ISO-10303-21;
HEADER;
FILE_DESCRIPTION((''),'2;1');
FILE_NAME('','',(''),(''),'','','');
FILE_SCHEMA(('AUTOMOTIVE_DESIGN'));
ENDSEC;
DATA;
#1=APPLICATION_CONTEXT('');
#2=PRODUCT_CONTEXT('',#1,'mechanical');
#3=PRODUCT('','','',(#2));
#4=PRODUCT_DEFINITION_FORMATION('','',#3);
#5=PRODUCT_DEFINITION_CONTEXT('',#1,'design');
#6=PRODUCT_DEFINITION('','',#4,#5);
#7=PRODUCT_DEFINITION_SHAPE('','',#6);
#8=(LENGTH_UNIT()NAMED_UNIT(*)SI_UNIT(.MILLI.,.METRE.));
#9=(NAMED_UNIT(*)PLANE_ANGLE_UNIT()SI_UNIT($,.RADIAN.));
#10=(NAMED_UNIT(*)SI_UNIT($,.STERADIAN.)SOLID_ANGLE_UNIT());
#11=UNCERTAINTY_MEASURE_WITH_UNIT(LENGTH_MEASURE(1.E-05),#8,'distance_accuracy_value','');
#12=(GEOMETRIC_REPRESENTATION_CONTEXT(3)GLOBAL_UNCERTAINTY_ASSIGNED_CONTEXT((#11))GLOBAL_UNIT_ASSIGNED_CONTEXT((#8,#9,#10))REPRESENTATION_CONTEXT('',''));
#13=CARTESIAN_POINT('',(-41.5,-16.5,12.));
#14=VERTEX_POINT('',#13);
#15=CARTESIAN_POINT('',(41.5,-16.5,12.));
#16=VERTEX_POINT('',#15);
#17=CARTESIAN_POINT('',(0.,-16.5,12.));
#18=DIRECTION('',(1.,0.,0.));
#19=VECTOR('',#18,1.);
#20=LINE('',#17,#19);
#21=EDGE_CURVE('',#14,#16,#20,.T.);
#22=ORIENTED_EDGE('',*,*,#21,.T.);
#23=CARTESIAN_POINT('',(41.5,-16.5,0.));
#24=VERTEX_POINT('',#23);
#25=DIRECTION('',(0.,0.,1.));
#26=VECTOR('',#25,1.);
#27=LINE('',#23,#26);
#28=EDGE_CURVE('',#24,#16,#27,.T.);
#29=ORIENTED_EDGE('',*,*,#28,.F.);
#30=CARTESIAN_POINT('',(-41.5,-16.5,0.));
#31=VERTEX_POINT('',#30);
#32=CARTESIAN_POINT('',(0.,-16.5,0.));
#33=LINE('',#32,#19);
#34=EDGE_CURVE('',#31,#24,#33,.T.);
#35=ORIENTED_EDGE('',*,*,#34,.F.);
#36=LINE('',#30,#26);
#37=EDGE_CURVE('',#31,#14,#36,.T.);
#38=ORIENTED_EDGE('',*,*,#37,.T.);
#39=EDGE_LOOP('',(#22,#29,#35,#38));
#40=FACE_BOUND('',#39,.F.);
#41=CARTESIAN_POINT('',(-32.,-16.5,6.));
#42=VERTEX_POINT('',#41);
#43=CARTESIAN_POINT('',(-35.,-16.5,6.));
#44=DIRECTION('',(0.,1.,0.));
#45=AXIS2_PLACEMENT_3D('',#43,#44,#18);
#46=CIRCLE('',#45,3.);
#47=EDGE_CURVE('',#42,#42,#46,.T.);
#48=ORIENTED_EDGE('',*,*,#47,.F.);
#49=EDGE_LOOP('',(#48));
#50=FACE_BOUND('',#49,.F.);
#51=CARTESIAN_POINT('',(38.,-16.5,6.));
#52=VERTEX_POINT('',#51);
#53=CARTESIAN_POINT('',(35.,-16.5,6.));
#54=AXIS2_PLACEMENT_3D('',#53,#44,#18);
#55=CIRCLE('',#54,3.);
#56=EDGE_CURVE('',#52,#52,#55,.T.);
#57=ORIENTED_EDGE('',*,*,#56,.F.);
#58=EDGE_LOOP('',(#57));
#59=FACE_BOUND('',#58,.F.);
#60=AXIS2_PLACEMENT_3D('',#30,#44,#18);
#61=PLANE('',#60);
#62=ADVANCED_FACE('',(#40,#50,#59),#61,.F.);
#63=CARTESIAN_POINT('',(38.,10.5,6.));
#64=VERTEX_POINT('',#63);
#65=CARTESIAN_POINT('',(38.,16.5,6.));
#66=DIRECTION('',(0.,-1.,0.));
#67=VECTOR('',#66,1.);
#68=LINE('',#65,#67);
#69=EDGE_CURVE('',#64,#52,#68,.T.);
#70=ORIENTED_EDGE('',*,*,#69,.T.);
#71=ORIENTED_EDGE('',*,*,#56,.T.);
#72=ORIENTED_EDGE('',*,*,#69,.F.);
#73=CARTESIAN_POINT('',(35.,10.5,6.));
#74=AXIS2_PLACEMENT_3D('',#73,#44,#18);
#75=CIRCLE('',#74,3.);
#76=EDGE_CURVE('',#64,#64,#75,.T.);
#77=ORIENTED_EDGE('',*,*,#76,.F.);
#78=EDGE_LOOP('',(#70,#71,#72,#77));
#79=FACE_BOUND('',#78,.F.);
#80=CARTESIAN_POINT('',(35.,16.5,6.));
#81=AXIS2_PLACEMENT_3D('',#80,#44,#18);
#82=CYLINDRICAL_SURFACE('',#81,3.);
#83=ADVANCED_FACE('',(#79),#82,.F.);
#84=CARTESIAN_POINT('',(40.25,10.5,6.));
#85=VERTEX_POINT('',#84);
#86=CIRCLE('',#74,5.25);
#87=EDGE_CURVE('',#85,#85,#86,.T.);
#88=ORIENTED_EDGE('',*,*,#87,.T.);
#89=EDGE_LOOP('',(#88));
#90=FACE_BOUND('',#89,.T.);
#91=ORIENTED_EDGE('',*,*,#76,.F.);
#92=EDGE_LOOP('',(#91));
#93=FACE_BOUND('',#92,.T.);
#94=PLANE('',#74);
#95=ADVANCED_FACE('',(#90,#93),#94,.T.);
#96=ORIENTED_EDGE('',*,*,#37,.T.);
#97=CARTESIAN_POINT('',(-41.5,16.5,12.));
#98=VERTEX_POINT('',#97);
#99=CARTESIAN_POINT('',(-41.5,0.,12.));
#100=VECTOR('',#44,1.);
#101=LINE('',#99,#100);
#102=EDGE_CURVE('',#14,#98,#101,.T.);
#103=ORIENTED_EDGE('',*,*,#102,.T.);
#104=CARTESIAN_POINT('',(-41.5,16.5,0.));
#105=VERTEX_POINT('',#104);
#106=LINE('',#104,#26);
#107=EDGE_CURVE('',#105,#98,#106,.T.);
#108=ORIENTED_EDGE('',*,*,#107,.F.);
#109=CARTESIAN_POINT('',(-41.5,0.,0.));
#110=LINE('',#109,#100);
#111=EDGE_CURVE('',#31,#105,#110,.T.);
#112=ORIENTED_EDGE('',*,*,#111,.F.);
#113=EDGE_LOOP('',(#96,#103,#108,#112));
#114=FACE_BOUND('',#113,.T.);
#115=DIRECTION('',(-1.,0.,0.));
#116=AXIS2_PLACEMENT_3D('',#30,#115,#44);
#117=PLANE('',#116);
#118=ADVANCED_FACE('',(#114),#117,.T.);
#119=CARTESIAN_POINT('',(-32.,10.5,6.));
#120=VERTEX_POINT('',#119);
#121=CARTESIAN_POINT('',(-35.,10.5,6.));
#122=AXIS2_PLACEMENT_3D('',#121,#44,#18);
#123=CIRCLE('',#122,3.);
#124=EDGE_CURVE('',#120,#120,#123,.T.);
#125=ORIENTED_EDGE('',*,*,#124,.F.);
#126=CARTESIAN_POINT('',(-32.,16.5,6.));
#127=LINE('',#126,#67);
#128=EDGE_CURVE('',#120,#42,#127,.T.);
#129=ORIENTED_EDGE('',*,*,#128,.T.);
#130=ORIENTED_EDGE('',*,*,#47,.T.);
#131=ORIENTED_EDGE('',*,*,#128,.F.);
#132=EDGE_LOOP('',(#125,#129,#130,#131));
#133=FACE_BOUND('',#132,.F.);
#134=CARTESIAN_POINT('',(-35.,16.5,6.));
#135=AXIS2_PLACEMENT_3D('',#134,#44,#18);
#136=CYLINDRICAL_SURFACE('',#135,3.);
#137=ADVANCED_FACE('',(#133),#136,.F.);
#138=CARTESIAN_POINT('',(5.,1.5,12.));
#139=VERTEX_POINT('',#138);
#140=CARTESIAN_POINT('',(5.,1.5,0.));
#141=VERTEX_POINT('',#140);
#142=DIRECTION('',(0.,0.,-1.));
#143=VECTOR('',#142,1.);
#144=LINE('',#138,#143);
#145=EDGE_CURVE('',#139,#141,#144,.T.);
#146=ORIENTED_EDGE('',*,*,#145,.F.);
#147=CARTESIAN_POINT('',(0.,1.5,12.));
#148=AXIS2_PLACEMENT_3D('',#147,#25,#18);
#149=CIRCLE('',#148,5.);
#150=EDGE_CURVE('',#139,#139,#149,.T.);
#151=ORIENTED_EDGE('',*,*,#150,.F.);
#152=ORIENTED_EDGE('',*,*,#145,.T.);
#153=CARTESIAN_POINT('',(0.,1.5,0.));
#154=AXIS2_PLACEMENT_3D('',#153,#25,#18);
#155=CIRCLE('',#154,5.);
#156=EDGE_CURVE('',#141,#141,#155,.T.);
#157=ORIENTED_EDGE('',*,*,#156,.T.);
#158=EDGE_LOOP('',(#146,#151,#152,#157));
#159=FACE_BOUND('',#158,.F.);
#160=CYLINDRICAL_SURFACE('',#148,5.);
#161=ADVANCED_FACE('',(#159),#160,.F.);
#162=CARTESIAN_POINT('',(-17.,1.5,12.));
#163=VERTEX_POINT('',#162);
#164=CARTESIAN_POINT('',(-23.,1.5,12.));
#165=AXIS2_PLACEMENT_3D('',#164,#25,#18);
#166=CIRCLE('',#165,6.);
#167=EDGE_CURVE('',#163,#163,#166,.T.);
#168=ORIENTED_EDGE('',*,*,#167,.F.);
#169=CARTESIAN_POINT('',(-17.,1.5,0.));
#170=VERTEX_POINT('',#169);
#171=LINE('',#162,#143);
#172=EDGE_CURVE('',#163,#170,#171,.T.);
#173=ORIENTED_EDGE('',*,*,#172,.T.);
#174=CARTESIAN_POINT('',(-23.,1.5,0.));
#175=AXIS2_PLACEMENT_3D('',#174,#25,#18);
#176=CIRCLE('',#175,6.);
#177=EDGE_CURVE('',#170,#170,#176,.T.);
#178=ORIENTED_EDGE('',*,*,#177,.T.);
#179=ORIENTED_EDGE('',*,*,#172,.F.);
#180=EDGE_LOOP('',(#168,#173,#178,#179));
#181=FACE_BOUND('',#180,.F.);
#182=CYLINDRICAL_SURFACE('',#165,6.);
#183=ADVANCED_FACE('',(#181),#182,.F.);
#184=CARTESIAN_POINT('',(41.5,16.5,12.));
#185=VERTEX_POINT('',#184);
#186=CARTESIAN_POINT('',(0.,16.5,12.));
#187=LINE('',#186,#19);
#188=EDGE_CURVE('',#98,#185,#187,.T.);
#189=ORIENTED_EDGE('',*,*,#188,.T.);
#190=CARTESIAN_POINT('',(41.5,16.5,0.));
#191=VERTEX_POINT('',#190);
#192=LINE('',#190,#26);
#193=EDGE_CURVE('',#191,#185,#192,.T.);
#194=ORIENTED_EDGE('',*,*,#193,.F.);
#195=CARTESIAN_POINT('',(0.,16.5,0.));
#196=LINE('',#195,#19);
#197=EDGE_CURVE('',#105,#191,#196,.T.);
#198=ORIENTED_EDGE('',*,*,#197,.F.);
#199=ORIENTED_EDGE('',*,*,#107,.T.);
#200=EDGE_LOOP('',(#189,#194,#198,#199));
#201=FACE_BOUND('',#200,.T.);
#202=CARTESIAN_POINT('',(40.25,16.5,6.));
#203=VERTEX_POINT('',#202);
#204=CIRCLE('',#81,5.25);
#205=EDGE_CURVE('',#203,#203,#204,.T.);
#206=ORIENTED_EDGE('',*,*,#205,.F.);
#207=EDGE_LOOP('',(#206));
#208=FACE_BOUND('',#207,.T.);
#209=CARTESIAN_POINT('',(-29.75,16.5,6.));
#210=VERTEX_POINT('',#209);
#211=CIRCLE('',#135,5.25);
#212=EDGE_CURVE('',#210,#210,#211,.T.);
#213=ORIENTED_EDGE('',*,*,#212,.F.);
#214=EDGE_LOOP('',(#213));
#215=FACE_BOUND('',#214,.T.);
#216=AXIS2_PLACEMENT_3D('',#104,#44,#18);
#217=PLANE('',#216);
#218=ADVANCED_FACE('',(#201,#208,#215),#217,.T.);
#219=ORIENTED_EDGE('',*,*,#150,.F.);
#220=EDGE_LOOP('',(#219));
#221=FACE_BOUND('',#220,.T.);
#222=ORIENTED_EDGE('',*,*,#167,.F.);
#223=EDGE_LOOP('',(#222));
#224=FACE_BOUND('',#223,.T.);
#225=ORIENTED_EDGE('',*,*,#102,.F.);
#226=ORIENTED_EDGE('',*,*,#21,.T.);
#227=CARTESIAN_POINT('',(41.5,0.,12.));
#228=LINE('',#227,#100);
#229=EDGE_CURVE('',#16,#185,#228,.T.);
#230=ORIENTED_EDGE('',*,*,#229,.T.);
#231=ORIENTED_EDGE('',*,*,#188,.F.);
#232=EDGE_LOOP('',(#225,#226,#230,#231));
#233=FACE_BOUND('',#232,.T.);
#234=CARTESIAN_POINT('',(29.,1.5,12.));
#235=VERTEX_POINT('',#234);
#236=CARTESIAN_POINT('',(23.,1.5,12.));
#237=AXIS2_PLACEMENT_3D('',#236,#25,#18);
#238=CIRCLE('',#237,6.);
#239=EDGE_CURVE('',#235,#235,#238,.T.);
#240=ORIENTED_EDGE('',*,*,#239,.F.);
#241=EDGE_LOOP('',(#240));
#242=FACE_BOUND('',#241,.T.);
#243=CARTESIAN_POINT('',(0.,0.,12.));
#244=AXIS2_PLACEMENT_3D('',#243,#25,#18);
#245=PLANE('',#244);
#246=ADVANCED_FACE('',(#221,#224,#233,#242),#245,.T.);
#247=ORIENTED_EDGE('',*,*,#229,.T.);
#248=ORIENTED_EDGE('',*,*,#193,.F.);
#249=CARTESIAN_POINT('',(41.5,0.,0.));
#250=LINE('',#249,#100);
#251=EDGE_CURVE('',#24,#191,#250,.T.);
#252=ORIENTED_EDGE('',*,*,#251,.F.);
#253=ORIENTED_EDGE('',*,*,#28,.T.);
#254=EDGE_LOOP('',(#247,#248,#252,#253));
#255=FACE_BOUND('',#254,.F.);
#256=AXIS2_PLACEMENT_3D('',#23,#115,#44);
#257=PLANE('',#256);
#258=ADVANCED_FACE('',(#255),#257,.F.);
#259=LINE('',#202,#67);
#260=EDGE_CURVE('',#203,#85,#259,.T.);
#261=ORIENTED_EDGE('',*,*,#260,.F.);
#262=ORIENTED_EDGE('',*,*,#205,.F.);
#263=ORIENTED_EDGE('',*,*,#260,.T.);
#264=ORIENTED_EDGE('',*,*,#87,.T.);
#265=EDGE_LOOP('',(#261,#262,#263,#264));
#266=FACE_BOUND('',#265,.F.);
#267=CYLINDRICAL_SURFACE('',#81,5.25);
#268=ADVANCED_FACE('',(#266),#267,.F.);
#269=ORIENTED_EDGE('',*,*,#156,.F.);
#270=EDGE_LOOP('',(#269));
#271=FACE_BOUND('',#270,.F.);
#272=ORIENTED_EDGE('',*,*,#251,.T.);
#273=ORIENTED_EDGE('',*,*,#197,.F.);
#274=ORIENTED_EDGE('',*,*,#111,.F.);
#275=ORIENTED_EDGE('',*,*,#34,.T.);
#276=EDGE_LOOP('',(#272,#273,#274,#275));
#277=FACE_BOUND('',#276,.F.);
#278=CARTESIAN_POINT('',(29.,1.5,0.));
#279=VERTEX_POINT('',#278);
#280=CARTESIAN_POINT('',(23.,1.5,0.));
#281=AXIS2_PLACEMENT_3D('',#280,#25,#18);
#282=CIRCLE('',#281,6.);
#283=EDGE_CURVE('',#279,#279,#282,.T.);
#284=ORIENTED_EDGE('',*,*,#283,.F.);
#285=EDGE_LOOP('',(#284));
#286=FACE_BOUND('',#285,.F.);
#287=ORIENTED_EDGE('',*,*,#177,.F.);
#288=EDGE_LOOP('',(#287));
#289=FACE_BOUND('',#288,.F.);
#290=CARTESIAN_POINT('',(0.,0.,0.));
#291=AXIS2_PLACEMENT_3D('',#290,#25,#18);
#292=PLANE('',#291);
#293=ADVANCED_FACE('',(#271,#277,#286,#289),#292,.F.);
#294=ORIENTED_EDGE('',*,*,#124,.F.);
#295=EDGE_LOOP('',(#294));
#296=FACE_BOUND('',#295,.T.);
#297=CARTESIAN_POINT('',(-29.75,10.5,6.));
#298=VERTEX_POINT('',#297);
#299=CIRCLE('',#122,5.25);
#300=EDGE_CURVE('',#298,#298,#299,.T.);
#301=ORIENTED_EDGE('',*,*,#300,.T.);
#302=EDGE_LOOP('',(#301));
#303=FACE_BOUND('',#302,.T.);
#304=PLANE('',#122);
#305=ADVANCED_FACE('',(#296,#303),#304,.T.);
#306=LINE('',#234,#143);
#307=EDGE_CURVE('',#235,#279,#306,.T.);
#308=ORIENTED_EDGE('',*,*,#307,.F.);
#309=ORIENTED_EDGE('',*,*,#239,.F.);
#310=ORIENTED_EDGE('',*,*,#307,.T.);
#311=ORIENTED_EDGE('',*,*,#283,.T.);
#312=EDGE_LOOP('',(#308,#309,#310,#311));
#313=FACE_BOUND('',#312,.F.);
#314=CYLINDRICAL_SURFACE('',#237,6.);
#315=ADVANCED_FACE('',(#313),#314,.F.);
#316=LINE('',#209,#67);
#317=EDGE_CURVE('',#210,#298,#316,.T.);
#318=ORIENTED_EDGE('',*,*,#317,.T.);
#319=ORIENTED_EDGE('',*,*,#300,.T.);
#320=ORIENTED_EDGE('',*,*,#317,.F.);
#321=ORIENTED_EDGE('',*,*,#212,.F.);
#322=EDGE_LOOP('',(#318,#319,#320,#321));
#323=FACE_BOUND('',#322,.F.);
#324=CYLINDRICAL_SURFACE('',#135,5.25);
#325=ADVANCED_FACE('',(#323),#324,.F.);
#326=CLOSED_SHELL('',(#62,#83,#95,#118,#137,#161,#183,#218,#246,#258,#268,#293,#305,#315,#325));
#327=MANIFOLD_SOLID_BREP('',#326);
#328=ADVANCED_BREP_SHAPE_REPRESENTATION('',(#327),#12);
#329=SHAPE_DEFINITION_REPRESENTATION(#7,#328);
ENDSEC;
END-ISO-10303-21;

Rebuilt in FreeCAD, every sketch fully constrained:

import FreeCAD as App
import Part
import Sketcher

V = App.Vector


def add_polygon(sketch, points):
    """Adds a closed chain of lines whose ends are joined by coincident constraints."""
    first, n = sketch.GeometryCount, len(points)
    for a, b in zip(points, points[1:] + points[:1]):
        sketch.addGeometry(Part.LineSegment(App.Vector(*a, 0), App.Vector(*b, 0)), False)
    for i in range(n):
        sketch.addConstraint(Sketcher.Constraint("Coincident", first + i, 2, first + (i + 1) % n, 1))

doc = App.newDocument("Part")
body = doc.addObject("PartDesign::Body", "Body")

# Sketch on XY plane
sketch1 = body.newObject("Sketcher::SketchObject", "Sketch")
sketch1.AttachmentSupport = (doc.getObject("XY_Plane"), [""])
sketch1.MapMode = "FlatFace"
add_polygon(sketch1, [(-41.5, 16.5), (-41.5, -16.5), (41.5, -16.5), (41.5, 16.5)])  # lines 0-3
sketch1.addConstraint(Sketcher.Constraint("Vertical", 0))
sketch1.addConstraint(Sketcher.Constraint("Horizontal", 1))
sketch1.addConstraint(Sketcher.Constraint("Vertical", 2))
sketch1.addConstraint(Sketcher.Constraint("Horizontal", 3))
sketch1.addConstraint(Sketcher.Constraint("Symmetric", 0, 2, 2, 2, -1, 1))
sketch1.addConstraint(Sketcher.Constraint("DistanceX", 1, 1, 1, 2, 83.0))
sketch1.addConstraint(Sketcher.Constraint("DistanceY", 0, 2, 0, 1, 33.0))
pad1 = body.newObject("PartDesign::Pad", "Pad")
pad1.Profile = sketch1
pad1.Length = 12

# Sketch on XY plane
sketch2 = body.newObject("Sketcher::SketchObject", "Sketch001")
sketch2.AttachmentSupport = (doc.getObject("XY_Plane"), [""])
sketch2.MapMode = "FlatFace"
sketch2.AttachmentOffset = App.Placement(V(0, 0, 12), App.Rotation())
sketch2.addGeometry(Part.Circle(V(0, 1.5, 0), V(0, 0, 1), 5), False)
sketch2.addGeometry(Part.Circle(V(-23, 1.5, 0), V(0, 0, 1), 6), False)
sketch2.addGeometry(Part.Circle(V(23, 1.5, 0), V(0, 0, 1), 6), False)
sketch2.addConstraint(Sketcher.Constraint("Equal", 1, 2))
sketch2.addConstraint(Sketcher.Constraint("Symmetric", 1, 3, 2, 3, -2))
sketch2.addConstraint(Sketcher.Constraint("PointOnObject", 0, 3, -2))
sketch2.addConstraint(Sketcher.Constraint("Horizontal", 0, 3, 1, 3))
sketch2.addConstraint(Sketcher.Constraint("Diameter", 0, 10.0))
sketch2.addConstraint(Sketcher.Constraint("Diameter", 1, 12.0))
sketch2.addConstraint(Sketcher.Constraint("DistanceX", 1, 3, -1, 1, 23.0))
sketch2.addConstraint(Sketcher.Constraint("DistanceY", -1, 1, 0, 3, 1.5))
pocket1 = body.newObject("PartDesign::Pocket", "Pocket")
pocket1.Profile = sketch2
pocket1.Type = "ThroughAll"

# Sketch on XZ plane
sketch3 = body.newObject("Sketcher::SketchObject", "Sketch002")
sketch3.AttachmentSupport = (doc.getObject("XZ_Plane"), [""])
sketch3.MapMode = "FlatFace"
sketch3.AttachmentOffset = App.Placement(V(0, 0, -16.5), App.Rotation())
sketch3.addGeometry(Part.Circle(V(-35, 6, 0), V(0, 0, 1), 3), False)
sketch3.addGeometry(Part.Circle(V(35, 6, 0), V(0, 0, 1), 3), False)
sketch3.addConstraint(Sketcher.Constraint("Equal", 0, 1))
sketch3.addConstraint(Sketcher.Constraint("Symmetric", 0, 3, 1, 3, -2))
sketch3.addConstraint(Sketcher.Constraint("Diameter", 0, 6.0))
sketch3.addConstraint(Sketcher.Constraint("DistanceX", 0, 3, -1, 1, 35.0))
sketch3.addConstraint(Sketcher.Constraint("DistanceY", -1, 1, 0, 3, 6.0))
pocket2 = body.newObject("PartDesign::Pocket", "Pocket001")
pocket2.Profile = sketch3
pocket2.Type = "ThroughAll"
pocket2.Reversed = True

# Sketch on XZ plane
sketch4 = body.newObject("Sketcher::SketchObject", "Sketch003")
sketch4.AttachmentSupport = (doc.getObject("XZ_Plane"), [""])
sketch4.MapMode = "FlatFace"
sketch4.AttachmentOffset = App.Placement(V(0, 0, -16.5), App.Rotation())
sketch4.addGeometry(Part.Circle(V(-35, 6, 0), V(0, 0, 1), 5.25), False)
sketch4.addGeometry(Part.Circle(V(35, 6, 0), V(0, 0, 1), 5.25), False)
sketch4.addConstraint(Sketcher.Constraint("Equal", 0, 1))
sketch4.addConstraint(Sketcher.Constraint("Symmetric", 0, 3, 1, 3, -2))
sketch4.addConstraint(Sketcher.Constraint("Diameter", 0, 10.5))
sketch4.addConstraint(Sketcher.Constraint("DistanceX", 0, 3, -1, 1, 35.0))
sketch4.addConstraint(Sketcher.Constraint("DistanceY", -1, 1, 0, 3, 6.0))
pocket3 = body.newObject("PartDesign::Pocket", "Pocket002")
pocket3.Profile = sketch4
pocket3.Length = 6
pocket3.Reversed = True

doc.recompute()
